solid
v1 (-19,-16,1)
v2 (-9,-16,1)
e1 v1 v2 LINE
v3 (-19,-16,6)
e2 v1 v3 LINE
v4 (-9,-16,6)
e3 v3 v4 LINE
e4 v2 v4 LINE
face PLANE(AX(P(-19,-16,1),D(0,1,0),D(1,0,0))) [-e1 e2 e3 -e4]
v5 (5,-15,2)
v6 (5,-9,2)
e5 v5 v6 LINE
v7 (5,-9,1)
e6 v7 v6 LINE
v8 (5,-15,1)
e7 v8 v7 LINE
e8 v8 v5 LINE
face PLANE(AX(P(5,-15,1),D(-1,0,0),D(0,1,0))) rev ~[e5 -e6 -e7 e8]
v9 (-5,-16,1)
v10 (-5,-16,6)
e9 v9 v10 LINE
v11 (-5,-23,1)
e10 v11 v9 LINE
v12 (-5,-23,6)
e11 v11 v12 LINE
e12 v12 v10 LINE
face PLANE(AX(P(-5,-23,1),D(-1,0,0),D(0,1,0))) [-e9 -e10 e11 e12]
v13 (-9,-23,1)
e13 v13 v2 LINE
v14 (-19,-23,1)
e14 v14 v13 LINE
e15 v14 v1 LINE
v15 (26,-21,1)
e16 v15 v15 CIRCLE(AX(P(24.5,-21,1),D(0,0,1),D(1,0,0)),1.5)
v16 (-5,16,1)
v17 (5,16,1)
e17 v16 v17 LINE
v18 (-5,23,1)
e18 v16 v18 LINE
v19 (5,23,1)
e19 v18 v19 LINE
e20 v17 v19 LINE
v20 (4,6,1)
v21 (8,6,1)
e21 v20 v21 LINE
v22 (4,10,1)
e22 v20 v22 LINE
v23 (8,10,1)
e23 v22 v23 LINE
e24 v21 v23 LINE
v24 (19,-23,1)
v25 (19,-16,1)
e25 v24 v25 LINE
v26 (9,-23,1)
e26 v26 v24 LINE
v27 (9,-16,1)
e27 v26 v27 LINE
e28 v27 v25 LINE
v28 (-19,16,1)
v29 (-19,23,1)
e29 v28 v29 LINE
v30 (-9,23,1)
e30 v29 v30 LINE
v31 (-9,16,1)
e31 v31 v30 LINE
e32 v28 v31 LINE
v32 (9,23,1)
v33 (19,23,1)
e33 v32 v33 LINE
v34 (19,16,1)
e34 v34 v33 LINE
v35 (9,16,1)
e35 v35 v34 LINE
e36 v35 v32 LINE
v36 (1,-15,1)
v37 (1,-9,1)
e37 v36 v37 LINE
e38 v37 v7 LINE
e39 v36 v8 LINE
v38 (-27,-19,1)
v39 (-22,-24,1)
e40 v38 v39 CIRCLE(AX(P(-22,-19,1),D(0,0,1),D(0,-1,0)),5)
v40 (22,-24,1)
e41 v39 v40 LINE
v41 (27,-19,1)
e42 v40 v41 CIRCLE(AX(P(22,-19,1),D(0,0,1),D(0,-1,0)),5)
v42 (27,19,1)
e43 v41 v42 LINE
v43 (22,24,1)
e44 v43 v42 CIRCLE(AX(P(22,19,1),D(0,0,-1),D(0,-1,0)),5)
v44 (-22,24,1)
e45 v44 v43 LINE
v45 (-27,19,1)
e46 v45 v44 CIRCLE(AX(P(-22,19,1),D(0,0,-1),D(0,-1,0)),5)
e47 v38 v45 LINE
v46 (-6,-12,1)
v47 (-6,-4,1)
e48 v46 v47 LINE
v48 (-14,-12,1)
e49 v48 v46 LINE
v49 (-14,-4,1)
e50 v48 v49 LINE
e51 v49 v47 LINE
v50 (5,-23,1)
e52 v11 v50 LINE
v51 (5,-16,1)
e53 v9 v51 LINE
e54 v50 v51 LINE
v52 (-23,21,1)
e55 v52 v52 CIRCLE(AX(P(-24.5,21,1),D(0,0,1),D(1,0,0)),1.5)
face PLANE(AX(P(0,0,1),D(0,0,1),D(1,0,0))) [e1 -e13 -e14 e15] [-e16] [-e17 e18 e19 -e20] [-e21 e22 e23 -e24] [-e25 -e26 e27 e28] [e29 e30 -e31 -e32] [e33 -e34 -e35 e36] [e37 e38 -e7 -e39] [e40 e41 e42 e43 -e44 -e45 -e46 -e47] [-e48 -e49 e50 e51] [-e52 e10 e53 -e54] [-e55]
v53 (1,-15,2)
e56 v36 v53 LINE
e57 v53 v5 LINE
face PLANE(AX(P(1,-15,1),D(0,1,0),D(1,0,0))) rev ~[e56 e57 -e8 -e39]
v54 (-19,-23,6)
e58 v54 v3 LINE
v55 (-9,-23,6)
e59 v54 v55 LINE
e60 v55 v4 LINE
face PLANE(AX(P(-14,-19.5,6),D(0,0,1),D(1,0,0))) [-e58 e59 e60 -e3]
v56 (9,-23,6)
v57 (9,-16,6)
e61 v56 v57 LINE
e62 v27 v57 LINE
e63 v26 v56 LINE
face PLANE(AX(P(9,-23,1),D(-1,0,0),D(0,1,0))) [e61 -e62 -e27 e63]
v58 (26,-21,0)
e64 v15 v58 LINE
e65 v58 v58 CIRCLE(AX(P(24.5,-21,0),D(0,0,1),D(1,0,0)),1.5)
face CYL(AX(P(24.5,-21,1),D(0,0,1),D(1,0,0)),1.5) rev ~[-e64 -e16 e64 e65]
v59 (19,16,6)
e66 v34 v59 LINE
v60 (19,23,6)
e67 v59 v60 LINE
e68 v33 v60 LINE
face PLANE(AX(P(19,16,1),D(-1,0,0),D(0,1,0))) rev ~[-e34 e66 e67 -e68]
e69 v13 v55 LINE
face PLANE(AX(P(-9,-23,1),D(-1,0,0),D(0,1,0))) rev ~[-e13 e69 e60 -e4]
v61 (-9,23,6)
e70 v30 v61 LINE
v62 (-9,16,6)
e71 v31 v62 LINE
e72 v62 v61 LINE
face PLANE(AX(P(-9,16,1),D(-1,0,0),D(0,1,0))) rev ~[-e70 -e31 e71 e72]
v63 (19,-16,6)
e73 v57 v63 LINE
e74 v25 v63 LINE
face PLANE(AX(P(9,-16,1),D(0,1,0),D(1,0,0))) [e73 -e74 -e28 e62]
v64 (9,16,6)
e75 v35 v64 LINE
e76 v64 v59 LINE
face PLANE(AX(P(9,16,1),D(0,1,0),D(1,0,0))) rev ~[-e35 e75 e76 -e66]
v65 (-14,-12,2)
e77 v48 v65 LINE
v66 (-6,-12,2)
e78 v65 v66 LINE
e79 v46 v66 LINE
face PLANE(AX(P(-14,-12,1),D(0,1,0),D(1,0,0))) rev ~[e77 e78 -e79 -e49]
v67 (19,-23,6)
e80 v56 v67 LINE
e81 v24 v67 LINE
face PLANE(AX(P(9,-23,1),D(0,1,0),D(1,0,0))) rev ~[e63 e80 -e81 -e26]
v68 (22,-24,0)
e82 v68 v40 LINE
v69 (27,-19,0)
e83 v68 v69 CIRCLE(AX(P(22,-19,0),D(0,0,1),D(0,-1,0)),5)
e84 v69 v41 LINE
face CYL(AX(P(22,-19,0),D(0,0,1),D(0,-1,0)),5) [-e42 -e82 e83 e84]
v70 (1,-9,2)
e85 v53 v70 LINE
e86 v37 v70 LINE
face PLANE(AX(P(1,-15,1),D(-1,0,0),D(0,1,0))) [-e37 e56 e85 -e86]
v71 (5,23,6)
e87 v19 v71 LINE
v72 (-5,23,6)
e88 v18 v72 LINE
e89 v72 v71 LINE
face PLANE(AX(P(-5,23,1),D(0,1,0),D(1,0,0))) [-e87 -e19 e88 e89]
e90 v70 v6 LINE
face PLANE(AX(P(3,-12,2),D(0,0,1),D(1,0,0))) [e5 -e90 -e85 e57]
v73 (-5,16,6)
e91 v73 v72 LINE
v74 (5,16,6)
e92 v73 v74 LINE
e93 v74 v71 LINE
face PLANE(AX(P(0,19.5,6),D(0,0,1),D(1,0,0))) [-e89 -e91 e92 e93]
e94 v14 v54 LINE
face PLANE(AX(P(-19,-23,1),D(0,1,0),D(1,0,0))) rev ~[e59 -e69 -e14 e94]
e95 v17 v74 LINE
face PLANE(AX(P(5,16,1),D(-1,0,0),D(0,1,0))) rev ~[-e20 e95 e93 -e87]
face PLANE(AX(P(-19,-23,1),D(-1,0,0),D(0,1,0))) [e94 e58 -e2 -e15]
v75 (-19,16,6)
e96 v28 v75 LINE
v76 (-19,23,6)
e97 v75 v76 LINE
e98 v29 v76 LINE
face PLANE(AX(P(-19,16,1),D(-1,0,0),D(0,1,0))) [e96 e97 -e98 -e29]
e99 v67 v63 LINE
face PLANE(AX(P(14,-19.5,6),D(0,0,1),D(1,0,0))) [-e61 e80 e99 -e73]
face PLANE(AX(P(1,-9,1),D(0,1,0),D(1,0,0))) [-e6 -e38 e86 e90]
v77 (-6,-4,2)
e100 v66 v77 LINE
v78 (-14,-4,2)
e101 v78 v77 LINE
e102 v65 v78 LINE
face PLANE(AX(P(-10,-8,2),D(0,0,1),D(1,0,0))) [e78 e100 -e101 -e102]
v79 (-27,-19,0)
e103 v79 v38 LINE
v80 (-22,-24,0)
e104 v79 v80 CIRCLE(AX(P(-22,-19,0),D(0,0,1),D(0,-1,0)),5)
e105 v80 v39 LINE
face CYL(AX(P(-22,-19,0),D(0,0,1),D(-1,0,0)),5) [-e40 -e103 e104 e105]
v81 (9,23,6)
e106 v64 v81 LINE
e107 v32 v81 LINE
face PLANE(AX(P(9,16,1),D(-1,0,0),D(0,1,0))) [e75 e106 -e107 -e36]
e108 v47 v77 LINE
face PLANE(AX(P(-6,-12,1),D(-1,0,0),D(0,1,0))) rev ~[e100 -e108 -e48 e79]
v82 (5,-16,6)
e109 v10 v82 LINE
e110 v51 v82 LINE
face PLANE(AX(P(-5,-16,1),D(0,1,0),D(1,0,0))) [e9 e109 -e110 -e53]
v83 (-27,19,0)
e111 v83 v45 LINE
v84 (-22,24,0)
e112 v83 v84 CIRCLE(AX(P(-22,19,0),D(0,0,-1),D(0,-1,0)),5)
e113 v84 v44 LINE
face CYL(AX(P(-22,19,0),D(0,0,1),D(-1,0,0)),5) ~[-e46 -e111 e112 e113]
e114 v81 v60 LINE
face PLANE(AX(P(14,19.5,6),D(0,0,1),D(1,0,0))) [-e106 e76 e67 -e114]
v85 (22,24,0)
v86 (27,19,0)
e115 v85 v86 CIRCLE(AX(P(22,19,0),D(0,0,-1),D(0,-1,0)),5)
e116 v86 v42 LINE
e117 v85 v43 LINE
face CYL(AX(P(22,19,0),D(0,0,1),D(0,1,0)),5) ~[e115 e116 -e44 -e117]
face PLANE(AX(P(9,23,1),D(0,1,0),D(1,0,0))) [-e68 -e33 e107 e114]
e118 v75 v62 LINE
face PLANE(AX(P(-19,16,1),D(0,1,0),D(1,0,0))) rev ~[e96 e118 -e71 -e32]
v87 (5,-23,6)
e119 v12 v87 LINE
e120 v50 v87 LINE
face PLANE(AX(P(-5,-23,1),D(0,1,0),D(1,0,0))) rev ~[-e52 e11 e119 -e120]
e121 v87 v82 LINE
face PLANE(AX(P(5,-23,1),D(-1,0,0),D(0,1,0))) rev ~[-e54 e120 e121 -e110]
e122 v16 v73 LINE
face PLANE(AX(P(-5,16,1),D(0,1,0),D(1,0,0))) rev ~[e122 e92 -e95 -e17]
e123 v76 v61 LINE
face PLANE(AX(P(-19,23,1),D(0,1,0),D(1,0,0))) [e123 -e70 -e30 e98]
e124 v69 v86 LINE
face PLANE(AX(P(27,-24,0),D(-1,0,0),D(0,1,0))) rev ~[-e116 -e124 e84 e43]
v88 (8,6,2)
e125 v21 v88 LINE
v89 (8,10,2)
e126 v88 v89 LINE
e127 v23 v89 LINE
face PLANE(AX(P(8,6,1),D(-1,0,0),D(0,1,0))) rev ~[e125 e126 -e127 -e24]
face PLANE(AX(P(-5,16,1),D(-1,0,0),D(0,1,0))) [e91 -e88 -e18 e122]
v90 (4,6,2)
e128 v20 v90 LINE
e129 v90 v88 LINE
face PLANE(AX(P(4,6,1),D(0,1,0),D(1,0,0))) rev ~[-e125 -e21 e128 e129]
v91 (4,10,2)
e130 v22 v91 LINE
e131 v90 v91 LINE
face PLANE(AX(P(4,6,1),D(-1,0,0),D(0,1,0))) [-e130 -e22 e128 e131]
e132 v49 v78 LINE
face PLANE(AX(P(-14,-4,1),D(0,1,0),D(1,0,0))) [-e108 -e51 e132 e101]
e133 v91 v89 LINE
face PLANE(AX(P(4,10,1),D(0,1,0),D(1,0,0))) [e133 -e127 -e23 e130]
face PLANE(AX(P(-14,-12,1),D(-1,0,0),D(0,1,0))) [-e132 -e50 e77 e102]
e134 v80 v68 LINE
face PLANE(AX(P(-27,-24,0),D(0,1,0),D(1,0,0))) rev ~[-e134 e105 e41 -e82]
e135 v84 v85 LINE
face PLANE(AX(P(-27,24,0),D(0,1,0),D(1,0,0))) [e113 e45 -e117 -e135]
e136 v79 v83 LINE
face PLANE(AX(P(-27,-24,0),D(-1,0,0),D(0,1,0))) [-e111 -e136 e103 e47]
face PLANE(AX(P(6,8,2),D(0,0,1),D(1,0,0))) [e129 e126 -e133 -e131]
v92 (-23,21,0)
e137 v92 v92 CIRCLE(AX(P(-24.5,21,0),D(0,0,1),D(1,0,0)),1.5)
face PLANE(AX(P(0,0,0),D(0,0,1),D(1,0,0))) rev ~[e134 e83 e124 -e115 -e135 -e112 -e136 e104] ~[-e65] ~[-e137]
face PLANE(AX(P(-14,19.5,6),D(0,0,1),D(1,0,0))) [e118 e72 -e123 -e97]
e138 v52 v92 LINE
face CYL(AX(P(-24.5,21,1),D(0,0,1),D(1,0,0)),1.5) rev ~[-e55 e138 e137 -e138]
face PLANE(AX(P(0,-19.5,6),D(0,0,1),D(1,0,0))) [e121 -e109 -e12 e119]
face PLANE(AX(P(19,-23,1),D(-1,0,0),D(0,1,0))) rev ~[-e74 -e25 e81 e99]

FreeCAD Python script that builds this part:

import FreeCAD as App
import Part
import Sketcher

V = App.Vector


def edges_at(feature, points):
    """Names of the edges that pass closest to the given points."""
    edges = feature.Shape.Edges
    near = lambda p: min(range(len(edges)), key=lambda i: edges[i].distToShape(Part.Vertex(*p))[0])
    return sorted({f"Edge{near(p) + 1}" for p in points})

doc = App.newDocument("Part")
body = doc.addObject("PartDesign::Body", "Body")

sketch1 = doc.addObject("Sketcher::SketchObject", "Sketch")
body.addObject(sketch1)
sketch1.AttachmentSupport = (doc.XY_Plane, [""])
sketch1.MapMode = "FlatFace"
sketch1.addGeometry([
    Part.LineSegment(V(-27, 24, 0), V(-27, -24, 0)),
    Part.LineSegment(V(-27, -24, 0), V(27, -24, 0)),
    Part.LineSegment(V(27, -24, 0), V(27, 24, 0)),
    Part.LineSegment(V(27, 24, 0), V(-27, 24, 0)),
], False)
sketch1.addConstraint([
    Sketcher.Constraint("Coincident", 0, 2, 1, 1),
    Sketcher.Constraint("Coincident", 1, 2, 2, 1),
    Sketcher.Constraint("Coincident", 2, 2, 3, 1),
    Sketcher.Constraint("Coincident", 3, 2, 0, 1),
    Sketcher.Constraint("Vertical", 0),
    Sketcher.Constraint("Horizontal", 1),
    Sketcher.Constraint("Vertical", 2),
    Sketcher.Constraint("Horizontal", 3),
    Sketcher.Constraint("Symmetric", 0, 2, 2, 2, -1, 1),
    Sketcher.Constraint("DistanceX", 1, 1, 1, 2, 54.0),
    Sketcher.Constraint("DistanceY", 0, 2, 0, 1, 48.0),
])
pad1 = doc.addObject("PartDesign::Pad", "Pad")
body.addObject(pad1)
pad1.Profile = sketch1
pad1.Length = 1

sketch2 = doc.addObject("Sketcher::SketchObject", "Sketch001")
body.addObject(sketch2)
sketch2.AttachmentSupport = (doc.XY_Plane, [""])
sketch2.MapMode = "FlatFace"
sketch2.AttachmentOffset = App.Placement(V(0, 0, 1), App.Rotation())
sketch2.addGeometry([
    Part.Circle(V(-24.5, 21, 0), V(0, 0, 1), 1.5),
    Part.Circle(V(24.5, -21, 0), V(0, 0, 1), 1.5),
], False)
sketch2.addConstraint([
    Sketcher.Constraint("Equal", 0, 1),
    Sketcher.Constraint("Symmetric", 0, 3, 1, 3, -1, 1),
    Sketcher.Constraint("Diameter", 0, 3.0),
    Sketcher.Constraint("DistanceY", -1, 1, 0, 3, 21.0),
    Sketcher.Constraint("DistanceX", 0, 3, 1, 3, 49.0),
])
pocket1 = doc.addObject("PartDesign::Pocket", "Pocket")
body.addObject(pocket1)
pocket1.Profile = sketch2
pocket1.Type = "ThroughAll"
doc.recompute()

fillet = doc.addObject("PartDesign::Fillet", "Fillet")
body.addObject(fillet)
fillet.Base = (pocket1, edges_at(pocket1, [
    (27, -24, 0.5),
    (-27, -24, 0.5),
    (-27, 24, 0.5),
    (27, 24, 0.5),
]))
fillet.Radius = 5

sketch3 = doc.addObject("Sketcher::SketchObject", "Sketch002")
body.addObject(sketch3)
sketch3.AttachmentSupport = (doc.XY_Plane, [""])
sketch3.MapMode = "FlatFace"
sketch3.AttachmentOffset = App.Placement(V(0, 0, 1), App.Rotation())
sketch3.addGeometry([
    Part.LineSegment(V(-19, 23, 0), V(-19, 16, 0)),
    Part.LineSegment(V(-19, 16, 0), V(-9, 16, 0)),
    Part.LineSegment(V(-9, 16, 0), V(-9, 23, 0)),
    Part.LineSegment(V(-9, 23, 0), V(-19, 23, 0)),
    Part.LineSegment(V(-5, 23, 0), V(-5, 16, 0)),
    Part.LineSegment(V(-5, 16, 0), V(5, 16, 0)),
    Part.LineSegment(V(5, 16, 0), V(5, 23, 0)),
    Part.LineSegment(V(5, 23, 0), V(-5, 23, 0)),
    Part.LineSegment(V(9, 23, 0), V(9, 16, 0)),
    Part.LineSegment(V(9, 16, 0), V(19, 16, 0)),
    Part.LineSegment(V(19, 16, 0), V(19, 23, 0)),
    Part.LineSegment(V(19, 23, 0), V(9, 23, 0)),
    Part.LineSegment(V(-19, -16, 0), V(-19, -23, 0)),
    Part.LineSegment(V(-19, -23, 0), V(-9, -23, 0)),
    Part.LineSegment(V(-9, -23, 0), V(-9, -16, 0)),
    Part.LineSegment(V(-9, -16, 0), V(-19, -16, 0)),
    Part.LineSegment(V(-5, -16, 0), V(-5, -23, 0)),
    Part.LineSegment(V(-5, -23, 0), V(5, -23, 0)),
    Part.LineSegment(V(5, -23, 0), V(5, -16, 0)),
    Part.LineSegment(V(5, -16, 0), V(-5, -16, 0)),
    Part.LineSegment(V(9, -16, 0), V(9, -23, 0)),
    Part.LineSegment(V(9, -23, 0), V(19, -23, 0)),
    Part.LineSegment(V(19, -23, 0), V(19, -16, 0)),
    Part.LineSegment(V(19, -16, 0), V(9, -16, 0)),
], False)
sketch3.addConstraint([
    Sketcher.Constraint("Coincident", 0, 2, 1, 1),
    Sketcher.Constraint("Coincident", 1, 2, 2, 1),
    Sketcher.Constraint("Coincident", 2, 2, 3, 1),
    Sketcher.Constraint("Coincident", 3, 2, 0, 1),
    Sketcher.Constraint("Coincident", 4, 2, 5, 1),
    Sketcher.Constraint("Coincident", 5, 2, 6, 1),
    Sketcher.Constraint("Coincident", 6, 2, 7, 1),
    Sketcher.Constraint("Coincident", 7, 2, 4, 1),
    Sketcher.Constraint("Coincident", 8, 2, 9, 1),
    Sketcher.Constraint("Coincident", 9, 2, 10, 1),
    Sketcher.Constraint("Coincident", 10, 2, 11, 1),
    Sketcher.Constraint("Coincident", 11, 2, 8, 1),
    Sketcher.Constraint("Coincident", 12, 2, 13, 1),
    Sketcher.Constraint("Coincident", 13, 2, 14, 1),
    Sketcher.Constraint("Coincident", 14, 2, 15, 1),
    Sketcher.Constraint("Coincident", 15, 2, 12, 1),
    Sketcher.Constraint("Coincident", 16, 2, 17, 1),
    Sketcher.Constraint("Coincident", 17, 2, 18, 1),
    Sketcher.Constraint("Coincident", 18, 2, 19, 1),
    Sketcher.Constraint("Coincident", 19, 2, 16, 1),
    Sketcher.Constraint("Coincident", 20, 2, 21, 1),
    Sketcher.Constraint("Coincident", 21, 2, 22, 1),
    Sketcher.Constraint("Coincident", 22, 2, 23, 1),
    Sketcher.Constraint("Coincident", 23, 2, 20, 1),
    Sketcher.Constraint("Vertical", 0),
    Sketcher.Constraint("Horizontal", 1),
    Sketcher.Constraint("Vertical", 2),
    Sketcher.Constraint("Horizontal", 3),
    Sketcher.Constraint("Vertical", 4),
    Sketcher.Constraint("Horizontal", 5),
    Sketcher.Constraint("Vertical", 6),
    Sketcher.Constraint("Horizontal", 7),
    Sketcher.Constraint("Vertical", 8),
    Sketcher.Constraint("Horizontal", 9),
    Sketcher.Constraint("Vertical", 10),
    Sketcher.Constraint("Horizontal", 11),
    Sketcher.Constraint("Vertical", 12),
    Sketcher.Constraint("Horizontal", 13),
    Sketcher.Constraint("Vertical", 14),
    Sketcher.Constraint("Horizontal", 15),
    Sketcher.Constraint("Vertical", 16),
    Sketcher.Constraint("Horizontal", 17),
    Sketcher.Constraint("Vertical", 18),
    Sketcher.Constraint("Horizontal", 19),
    Sketcher.Constraint("Vertical", 20),
    Sketcher.Constraint("Horizontal", 21),
    Sketcher.Constraint("Vertical", 22),
    Sketcher.Constraint("Horizontal", 23),
    Sketcher.Constraint("Symmetric", 10, 2, 12, 2, -1, 1),
    Sketcher.Constraint("Symmetric", 8, 2, 14, 2, -1, 1),
    Sketcher.Constraint("Symmetric", 6, 2, 16, 2, -1, 1),
    Sketcher.Constraint("Symmetric", 4, 2, 18, 2, -1, 1),
    Sketcher.Constraint("Symmetric", 2, 2, 20, 2, -1, 1),
    Sketcher.Constraint("Symmetric", 0, 2, 22, 2, -1, 1),
    Sketcher.Constraint("Symmetric", 1, 2, 8, 2, -2),
    Sketcher.Constraint("Symmetric", 3, 2, 10, 2, -2),
    Sketcher.Constraint("Horizontal", 1, 2, 4, 2),
    Sketcher.Constraint("Horizontal", 3, 2, 6, 2),
    Sketcher.Constraint("Vertical", 7, 2, 16, 2),
    Sketcher.Constraint("Equal", 3, 5),
    Sketcher.Constraint("DistanceX", 1, 1, 1, 2, 10.0),
    Sketcher.Constraint("DistanceY", 0, 2, 0, 1, 7.0),
    Sketcher.Constraint("DistanceX", 0, 2, -1, 1, 19.0),
    Sketcher.Constraint("DistanceY", -1, 1, 0, 2, 16.0),
])
pad2 = doc.addObject("PartDesign::Pad", "Pad001")
body.addObject(pad2)
pad2.Profile = sketch3
pad2.Length = 5

sketch4 = doc.addObject("Sketcher::SketchObject", "Sketch003")
body.addObject(sketch4)
sketch4.AttachmentSupport = (doc.XY_Plane, [""])
sketch4.MapMode = "FlatFace"
sketch4.AttachmentOffset = App.Placement(V(0, 0, 1), App.Rotation())
sketch4.addGeometry([
    Part.LineSegment(V(-14, -4, 0), V(-14, -12, 0)),
    Part.LineSegment(V(-14, -12, 0), V(-6, -12, 0)),
    Part.LineSegment(V(-6, -12, 0), V(-6, -4, 0)),
    Part.LineSegment(V(-6, -4, 0), V(-14, -4, 0)),
    Part.LineSegment(V(1, -9, 0), V(1, -15, 0)),
    Part.LineSegment(V(1, -15, 0), V(5, -15, 0)),
    Part.LineSegment(V(5, -15, 0), V(5, -9, 0)),
    Part.LineSegment(V(5, -9, 0), V(1, -9, 0)),
    Part.LineSegment(V(4, 10, 0), V(4, 6, 0)),
    Part.LineSegment(V(4, 6, 0), V(8, 6, 0)),
    Part.LineSegment(V(8, 6, 0), V(8, 10, 0)),
    Part.LineSegment(V(8, 10, 0), V(4, 10, 0)),
], False)
sketch4.addConstraint([
    Sketcher.Constraint("Coincident", 0, 2, 1, 1),
    Sketcher.Constraint("Coincident", 1, 2, 2, 1),
    Sketcher.Constraint("Coincident", 2, 2, 3, 1),
    Sketcher.Constraint("Coincident", 3, 2, 0, 1),
    Sketcher.Constraint("Coincident", 4, 2, 5, 1),
    Sketcher.Constraint("Coincident", 5, 2, 6, 1),
    Sketcher.Constraint("Coincident", 6, 2, 7, 1),
    Sketcher.Constraint("Coincident", 7, 2, 4, 1),
    Sketcher.Constraint("Coincident", 8, 2, 9, 1),
    Sketcher.Constraint("Coincident", 9, 2, 10, 1),
    Sketcher.Constraint("Coincident", 10, 2, 11, 1),
    Sketcher.Constraint("Coincident", 11, 2, 8, 1),
    Sketcher.Constraint("Vertical", 0),
    Sketcher.Constraint("Horizontal", 1),
    Sketcher.Constraint("Vertical", 2),
    Sketcher.Constraint("Horizontal", 3),
    Sketcher.Constraint("Vertical", 4),
    Sketcher.Constraint("Horizontal", 5),
    Sketcher.Constraint("Vertical", 6),
    Sketcher.Constraint("Horizontal", 7),
    Sketcher.Constraint("Vertical", 8),
    Sketcher.Constraint("Horizontal", 9),
    Sketcher.Constraint("Vertical", 10),
    Sketcher.Constraint("Horizontal", 11),
    Sketcher.Constraint("Equal", 7, 9),
    Sketcher.Constraint("Equal", 3, 0),
    Sketcher.Constraint("Equal", 11, 8),
    Sketcher.Constraint("DistanceX", 1, 1, 1, 2, 8.0),
    Sketcher.Constraint("DistanceX", 5, 1, 5, 2, 4.0),
    Sketcher.Constraint("DistanceY", 4, 2, 4, 1, 6.0),
    Sketcher.Constraint("DistanceX", 0, 2, -1, 1, 14.0),
    Sketcher.Constraint("DistanceY", 0, 2, -1, 1, 12.0),
    Sketcher.Constraint("DistanceX", -1, 1, 4, 2, 1.0),
    Sketcher.Constraint("DistanceY", 4, 2, -1, 1, 15.0),
    Sketcher.Constraint("DistanceX", -1, 1, 8, 2, 4.0),
    Sketcher.Constraint("DistanceY", -1, 1, 8, 2, 6.0),
])
pad3 = doc.addObject("PartDesign::Pad", "Pad002")
body.addObject(pad3)
pad3.Profile = sketch4
pad3.Length = 1

doc.recompute()
